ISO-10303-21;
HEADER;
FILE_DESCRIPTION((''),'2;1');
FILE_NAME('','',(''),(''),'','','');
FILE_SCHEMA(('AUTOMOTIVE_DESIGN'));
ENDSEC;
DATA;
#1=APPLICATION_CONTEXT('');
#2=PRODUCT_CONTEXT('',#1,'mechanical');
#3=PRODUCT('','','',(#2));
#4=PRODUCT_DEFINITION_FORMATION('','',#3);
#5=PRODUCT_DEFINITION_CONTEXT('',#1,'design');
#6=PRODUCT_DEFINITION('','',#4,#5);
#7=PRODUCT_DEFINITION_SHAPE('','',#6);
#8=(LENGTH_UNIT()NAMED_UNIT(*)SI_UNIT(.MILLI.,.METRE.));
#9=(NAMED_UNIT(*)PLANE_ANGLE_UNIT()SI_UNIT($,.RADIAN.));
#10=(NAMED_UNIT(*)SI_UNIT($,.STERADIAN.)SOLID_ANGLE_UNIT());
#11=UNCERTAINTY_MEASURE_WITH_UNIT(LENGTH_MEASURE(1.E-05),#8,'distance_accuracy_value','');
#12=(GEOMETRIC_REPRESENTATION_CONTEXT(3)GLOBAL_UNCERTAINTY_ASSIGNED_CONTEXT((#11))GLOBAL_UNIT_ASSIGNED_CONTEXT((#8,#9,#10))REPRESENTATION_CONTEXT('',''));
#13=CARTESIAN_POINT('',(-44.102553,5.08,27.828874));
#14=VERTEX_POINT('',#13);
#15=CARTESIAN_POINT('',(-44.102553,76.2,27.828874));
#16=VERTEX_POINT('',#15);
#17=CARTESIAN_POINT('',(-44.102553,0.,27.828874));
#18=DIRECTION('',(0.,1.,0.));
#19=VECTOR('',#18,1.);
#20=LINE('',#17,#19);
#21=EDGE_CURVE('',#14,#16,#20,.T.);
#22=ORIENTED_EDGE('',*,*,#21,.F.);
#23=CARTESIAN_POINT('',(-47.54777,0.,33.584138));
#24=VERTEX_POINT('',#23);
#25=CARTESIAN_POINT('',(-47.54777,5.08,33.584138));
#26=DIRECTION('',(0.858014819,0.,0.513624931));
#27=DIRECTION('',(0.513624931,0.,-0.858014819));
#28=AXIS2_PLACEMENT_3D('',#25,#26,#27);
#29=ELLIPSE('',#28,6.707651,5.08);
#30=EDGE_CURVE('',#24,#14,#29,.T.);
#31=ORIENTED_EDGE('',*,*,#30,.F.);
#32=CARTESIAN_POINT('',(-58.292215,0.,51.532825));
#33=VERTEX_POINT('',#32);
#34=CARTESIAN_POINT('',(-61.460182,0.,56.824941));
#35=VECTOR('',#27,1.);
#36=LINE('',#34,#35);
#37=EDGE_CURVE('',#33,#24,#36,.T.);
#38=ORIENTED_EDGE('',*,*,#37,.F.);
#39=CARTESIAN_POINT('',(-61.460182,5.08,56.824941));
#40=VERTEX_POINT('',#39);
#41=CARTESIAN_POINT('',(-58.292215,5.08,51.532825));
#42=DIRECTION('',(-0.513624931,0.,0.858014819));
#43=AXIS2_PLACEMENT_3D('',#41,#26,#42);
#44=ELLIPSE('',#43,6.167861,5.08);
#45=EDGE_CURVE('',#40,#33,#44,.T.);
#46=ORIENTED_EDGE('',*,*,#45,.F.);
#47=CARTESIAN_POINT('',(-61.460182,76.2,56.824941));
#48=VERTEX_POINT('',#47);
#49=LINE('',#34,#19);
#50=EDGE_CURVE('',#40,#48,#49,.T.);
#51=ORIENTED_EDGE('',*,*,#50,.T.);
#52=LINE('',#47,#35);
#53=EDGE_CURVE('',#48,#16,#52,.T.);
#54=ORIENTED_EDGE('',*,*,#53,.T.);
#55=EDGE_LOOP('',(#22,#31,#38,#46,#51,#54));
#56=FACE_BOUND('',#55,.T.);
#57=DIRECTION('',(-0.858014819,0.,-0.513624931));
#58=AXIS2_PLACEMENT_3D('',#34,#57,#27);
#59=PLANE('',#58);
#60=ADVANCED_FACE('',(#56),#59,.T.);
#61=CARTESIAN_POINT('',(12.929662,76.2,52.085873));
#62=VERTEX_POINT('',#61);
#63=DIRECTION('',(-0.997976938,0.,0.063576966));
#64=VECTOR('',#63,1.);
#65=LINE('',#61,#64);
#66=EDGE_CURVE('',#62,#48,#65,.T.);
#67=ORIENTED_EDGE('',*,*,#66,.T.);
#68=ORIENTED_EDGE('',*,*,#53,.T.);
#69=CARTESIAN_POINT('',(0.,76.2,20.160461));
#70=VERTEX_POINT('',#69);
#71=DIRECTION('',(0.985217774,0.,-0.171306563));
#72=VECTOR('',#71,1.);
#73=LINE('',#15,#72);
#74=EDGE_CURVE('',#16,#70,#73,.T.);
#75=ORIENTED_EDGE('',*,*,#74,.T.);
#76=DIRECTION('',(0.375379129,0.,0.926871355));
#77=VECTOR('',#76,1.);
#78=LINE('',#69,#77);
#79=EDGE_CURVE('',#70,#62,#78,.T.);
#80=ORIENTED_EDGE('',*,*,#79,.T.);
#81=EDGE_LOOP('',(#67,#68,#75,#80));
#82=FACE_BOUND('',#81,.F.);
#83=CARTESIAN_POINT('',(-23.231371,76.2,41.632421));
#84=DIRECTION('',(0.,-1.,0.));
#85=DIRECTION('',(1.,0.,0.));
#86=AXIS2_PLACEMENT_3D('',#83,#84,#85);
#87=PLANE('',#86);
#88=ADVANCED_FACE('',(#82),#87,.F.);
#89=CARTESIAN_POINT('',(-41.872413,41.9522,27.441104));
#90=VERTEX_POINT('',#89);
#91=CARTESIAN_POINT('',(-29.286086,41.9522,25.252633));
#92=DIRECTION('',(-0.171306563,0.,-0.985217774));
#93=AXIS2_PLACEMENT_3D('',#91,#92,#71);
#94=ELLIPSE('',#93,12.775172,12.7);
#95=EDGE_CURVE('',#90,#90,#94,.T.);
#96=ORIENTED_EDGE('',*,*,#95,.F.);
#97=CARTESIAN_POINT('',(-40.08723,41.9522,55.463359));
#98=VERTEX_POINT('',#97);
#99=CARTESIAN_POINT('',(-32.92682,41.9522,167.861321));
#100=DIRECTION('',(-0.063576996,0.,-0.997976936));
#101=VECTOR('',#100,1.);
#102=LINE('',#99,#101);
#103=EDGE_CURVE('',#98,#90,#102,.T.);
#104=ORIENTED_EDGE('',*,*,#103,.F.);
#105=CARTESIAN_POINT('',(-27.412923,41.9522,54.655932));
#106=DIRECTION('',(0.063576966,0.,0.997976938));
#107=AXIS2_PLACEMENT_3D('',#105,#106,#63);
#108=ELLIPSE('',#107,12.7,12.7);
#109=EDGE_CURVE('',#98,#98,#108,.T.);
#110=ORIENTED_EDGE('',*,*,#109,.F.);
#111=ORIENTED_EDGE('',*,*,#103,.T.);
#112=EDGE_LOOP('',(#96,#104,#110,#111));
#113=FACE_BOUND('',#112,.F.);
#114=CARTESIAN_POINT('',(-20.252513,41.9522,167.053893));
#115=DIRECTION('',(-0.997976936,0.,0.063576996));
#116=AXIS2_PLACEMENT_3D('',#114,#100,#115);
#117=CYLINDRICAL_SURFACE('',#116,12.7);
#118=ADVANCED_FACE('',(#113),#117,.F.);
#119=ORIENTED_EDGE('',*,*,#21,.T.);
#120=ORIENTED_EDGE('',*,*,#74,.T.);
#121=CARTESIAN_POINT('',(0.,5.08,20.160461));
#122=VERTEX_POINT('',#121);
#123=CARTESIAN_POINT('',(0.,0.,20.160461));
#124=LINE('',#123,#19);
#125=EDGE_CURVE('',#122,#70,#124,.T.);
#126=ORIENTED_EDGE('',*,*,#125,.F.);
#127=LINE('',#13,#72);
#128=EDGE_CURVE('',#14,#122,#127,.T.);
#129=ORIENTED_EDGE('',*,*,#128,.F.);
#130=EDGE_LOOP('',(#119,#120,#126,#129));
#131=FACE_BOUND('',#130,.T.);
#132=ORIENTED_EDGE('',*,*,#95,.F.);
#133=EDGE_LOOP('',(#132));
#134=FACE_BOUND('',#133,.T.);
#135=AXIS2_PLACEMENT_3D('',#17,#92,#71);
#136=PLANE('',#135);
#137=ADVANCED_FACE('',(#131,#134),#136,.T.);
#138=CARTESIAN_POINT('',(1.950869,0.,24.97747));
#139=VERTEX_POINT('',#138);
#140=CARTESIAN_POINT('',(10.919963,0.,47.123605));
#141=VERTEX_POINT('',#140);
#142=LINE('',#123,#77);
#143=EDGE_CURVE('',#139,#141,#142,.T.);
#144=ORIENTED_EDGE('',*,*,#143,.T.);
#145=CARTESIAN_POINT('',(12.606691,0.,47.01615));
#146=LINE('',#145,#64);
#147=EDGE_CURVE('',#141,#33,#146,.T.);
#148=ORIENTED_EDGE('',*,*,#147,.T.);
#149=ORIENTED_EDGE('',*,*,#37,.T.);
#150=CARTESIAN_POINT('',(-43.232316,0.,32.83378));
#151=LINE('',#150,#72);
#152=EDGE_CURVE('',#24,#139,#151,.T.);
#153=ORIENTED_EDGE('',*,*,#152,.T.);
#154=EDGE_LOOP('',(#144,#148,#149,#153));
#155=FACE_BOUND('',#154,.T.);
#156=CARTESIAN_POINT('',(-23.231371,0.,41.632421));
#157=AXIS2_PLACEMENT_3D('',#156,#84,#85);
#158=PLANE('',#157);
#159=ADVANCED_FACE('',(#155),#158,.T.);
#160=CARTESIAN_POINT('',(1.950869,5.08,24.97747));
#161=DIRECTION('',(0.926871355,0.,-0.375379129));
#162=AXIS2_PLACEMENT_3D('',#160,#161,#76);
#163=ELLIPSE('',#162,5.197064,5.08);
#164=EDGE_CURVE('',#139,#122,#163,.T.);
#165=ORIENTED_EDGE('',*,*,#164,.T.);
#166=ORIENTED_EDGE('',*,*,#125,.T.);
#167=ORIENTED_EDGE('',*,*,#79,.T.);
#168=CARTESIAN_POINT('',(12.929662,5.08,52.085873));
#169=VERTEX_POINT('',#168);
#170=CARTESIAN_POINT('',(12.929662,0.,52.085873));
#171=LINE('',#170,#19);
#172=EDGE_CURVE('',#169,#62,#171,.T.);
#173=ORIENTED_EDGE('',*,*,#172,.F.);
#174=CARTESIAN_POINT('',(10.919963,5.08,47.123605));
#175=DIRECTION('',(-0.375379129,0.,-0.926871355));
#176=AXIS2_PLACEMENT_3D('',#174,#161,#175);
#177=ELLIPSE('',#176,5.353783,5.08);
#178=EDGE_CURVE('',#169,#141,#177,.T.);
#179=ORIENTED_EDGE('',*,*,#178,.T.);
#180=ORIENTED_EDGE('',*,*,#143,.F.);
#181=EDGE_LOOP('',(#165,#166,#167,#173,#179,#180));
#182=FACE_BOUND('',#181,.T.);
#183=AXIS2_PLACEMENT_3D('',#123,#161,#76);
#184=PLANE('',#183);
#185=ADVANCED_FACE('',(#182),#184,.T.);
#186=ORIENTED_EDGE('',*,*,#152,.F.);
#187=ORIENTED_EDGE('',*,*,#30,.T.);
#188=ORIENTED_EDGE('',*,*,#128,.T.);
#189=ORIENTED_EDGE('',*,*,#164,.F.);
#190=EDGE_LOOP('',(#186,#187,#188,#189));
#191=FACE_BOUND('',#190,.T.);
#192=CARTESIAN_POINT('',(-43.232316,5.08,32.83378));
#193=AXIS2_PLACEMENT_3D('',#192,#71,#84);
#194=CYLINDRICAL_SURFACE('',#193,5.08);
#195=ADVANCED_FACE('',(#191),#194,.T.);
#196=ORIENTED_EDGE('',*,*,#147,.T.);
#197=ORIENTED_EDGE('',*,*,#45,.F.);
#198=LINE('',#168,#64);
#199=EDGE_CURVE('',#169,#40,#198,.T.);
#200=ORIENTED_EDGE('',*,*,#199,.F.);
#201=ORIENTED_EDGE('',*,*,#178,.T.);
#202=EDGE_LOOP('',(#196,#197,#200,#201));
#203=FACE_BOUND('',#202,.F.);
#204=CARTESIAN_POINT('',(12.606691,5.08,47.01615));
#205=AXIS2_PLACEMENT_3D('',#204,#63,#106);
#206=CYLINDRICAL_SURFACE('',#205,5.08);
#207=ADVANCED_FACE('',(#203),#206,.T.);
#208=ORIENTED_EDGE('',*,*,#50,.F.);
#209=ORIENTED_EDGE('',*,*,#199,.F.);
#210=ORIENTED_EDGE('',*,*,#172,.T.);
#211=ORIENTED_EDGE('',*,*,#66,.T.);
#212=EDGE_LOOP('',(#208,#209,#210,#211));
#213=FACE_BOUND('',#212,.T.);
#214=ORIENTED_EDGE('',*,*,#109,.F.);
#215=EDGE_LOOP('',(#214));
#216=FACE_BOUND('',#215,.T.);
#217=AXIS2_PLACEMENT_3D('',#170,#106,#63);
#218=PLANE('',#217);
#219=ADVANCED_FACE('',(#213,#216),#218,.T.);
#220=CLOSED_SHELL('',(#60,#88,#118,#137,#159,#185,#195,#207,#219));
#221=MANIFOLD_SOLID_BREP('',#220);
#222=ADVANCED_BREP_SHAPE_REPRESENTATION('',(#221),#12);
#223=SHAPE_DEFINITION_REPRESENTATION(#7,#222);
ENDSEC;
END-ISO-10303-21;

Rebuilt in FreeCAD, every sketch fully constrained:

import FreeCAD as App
import Part
import Sketcher

V = App.Vector
Q = App.Units.Quantity


def edges_at(feature, points):
    """Names of the edges that pass closest to the given points."""
    edges = feature.Shape.Edges
    near = lambda p: min(range(len(edges)), key=lambda i: edges[i].distToShape(Part.Vertex(*p))[0])
    return sorted({f"Edge{near(p) + 1}" for p in points})

doc = App.newDocument("Part")
body = doc.addObject("PartDesign::Body", "Body")

sketch1 = body.newObject("Sketcher::SketchObject", "Sketch")
sketch1.AttachmentSupport = (doc.getObject("XZ_Plane"), [""])
sketch1.MapMode = "FlatFace"
sketch1.addGeometry(Part.LineSegment(V(12.929662, 52.085873, 0), V(-61.460182, 56.824941, 0)), False)
sketch1.addGeometry(Part.LineSegment(V(-61.460182, 56.824941, 0), V(-44.102553, 27.828874, 0)), False)
sketch1.addGeometry(Part.LineSegment(V(-44.102553, 27.828874, 0), V(0, 20.160461, 0)), False)
sketch1.addGeometry(Part.LineSegment(V(0, 20.160461, 0), V(12.929662, 52.085873, 0)), False)
sketch1.addConstraint(Sketcher.Constraint("Coincident", 0, 2, 1, 1))
sketch1.addConstraint(Sketcher.Constraint("Coincident", 1, 2, 2, 1))
sketch1.addConstraint(Sketcher.Constraint("Coincident", 2, 2, 3, 1))
sketch1.addConstraint(Sketcher.Constraint("Coincident", 3, 2, 0, 1))
sketch1.addConstraint(Sketcher.Constraint("PointOnObject", 2, 2, -2))
sketch1.addConstraint(Sketcher.Constraint("DistanceY", 1, 2, 3, 2, Q("0.955 in")))
sketch1.addConstraint(Sketcher.Constraint("Distance", 2, 44.764269))
sketch1.addConstraint(Sketcher.Constraint("DistanceY", -1, 1, 0, 2, 56.824941))
sketch1.addConstraint(Sketcher.Constraint("DistanceY", -1, 1, 2, 2, 20.160461))
sketch1.addConstraint(Sketcher.Constraint("DistanceX", 0, 2, 1, 2, 17.357629))
sketch1.addConstraint(Sketcher.Constraint("DistanceY", 2, 2, 3, 2, 31.925412))
sketch1.addConstraint(Sketcher.Constraint("Distance", 0, 74.540644))
pad1 = body.newObject("PartDesign::Pad", "Pad")
pad1.Profile = sketch1
pad1.Length = Q("3 in")
pad1.Reversed = True
doc.recompute()

fillet = body.newObject("PartDesign::Fillet", "Fillet")
fillet.Base = (pad1, edges_at(pad1, [(-24.265, 0, 54.455)]))
fillet.Radius = Q("0.2 in")
doc.recompute()

fillet2 = body.newObject("PartDesign::Fillet", "Fillet001")
fillet2.Base = (fillet, edges_at(fillet, [(-22.051, 0, 23.995)]))
fillet2.Radius = Q("0.2 in")

sketch2 = body.newObject("Sketcher::SketchObject", "Sketch001")
sketch2.Placement = App.Placement(V(3.357026, 0, 52.695706), App.Rotation(V(0.997976936, 0, -0.063576996), V(0, 0.999999999, 0), V(0.063576996, 0, 0.997976936), "ZXY"))
sketch2.addGeometry(Part.Circle(V(-30.832325, 41.9522, 0), V(0, 0, 1), 12.7), False)
sketch2.addConstraint(Sketcher.Constraint("Diameter", 0, Q("1 in")))
sketch2.addConstraint(Sketcher.Constraint("DistanceY", -1, 1, 0, 3, 41.9522))
sketch2.addConstraint(Sketcher.Constraint("DistanceX", 0, 3, -1, 1, 30.832325))
doc.recompute()
hole = body.newObject("PartDesign::Hole", "Hole")
hole.Profile = sketch2
hole.ThreadType = "None"
hole.Diameter = Q("1 in")
hole.DepthType = "ThroughAll"

doc.recompute()
